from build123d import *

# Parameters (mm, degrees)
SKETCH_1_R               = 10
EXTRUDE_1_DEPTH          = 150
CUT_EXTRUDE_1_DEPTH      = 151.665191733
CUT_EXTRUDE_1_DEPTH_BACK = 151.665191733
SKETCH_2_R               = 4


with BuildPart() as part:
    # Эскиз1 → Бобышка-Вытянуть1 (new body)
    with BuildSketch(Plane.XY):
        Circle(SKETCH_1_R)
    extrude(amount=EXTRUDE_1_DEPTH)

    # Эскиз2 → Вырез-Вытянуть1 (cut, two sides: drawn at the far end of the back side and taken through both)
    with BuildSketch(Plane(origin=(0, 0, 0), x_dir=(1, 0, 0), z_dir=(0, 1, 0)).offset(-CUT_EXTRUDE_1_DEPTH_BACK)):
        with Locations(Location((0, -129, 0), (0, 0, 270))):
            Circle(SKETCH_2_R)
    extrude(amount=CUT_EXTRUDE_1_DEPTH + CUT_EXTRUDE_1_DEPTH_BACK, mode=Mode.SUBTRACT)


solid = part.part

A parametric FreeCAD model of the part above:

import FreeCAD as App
import Part
import Sketcher
Q = App.Units.Quantity

doc = App.newDocument("Part")
body = doc.addObject("PartDesign::Body", "Body")

# Sketch on XY plane
sketch1 = body.newObject("Sketcher::SketchObject", "Sketch")
sketch1.AttachmentSupport = (doc.getObject("XY_Plane"), [""])
sketch1.MapMode = "FlatFace"
sketch1.addGeometry(Part.Circle(App.Vector(0, 0, 0), App.Vector(0, 0, 1), 10), False)
sketch1.addConstraint([
    Sketcher.Constraint("Coincident", 0, 3, -1, 1),
    Sketcher.Constraint("Diameter", 0, Q("20 mm")),
])
pad1 = body.newObject("PartDesign::Pad", "Pad")
pad1.Profile = sketch1
pad1.Length = 150

# Sketch on XZ plane
sketch2 = body.newObject("Sketcher::SketchObject", "Sketch001")
sketch2.AttachmentSupport = (doc.getObject("XZ_Plane"), [""])
sketch2.MapMode = "FlatFace"
sketch2.addGeometry(Part.Circle(App.Vector(0, 129, 0), App.Vector(0, 0, 1), 4), False)
sketch2.addConstraint([
    Sketcher.Constraint("PointOnObject", 0, 3, -2),
    Sketcher.Constraint("Diameter", 0, Q("8 mm")),
    Sketcher.Constraint("DistanceY", -1, 1, 0, 3, Q("129 mm")),
])
pocket1 = body.newObject("PartDesign::Pocket", "Pocket")
pocket1.Profile = sketch2
pocket1.Type = "ThroughAll"
pocket1.Midplane = True

doc.recompute()
